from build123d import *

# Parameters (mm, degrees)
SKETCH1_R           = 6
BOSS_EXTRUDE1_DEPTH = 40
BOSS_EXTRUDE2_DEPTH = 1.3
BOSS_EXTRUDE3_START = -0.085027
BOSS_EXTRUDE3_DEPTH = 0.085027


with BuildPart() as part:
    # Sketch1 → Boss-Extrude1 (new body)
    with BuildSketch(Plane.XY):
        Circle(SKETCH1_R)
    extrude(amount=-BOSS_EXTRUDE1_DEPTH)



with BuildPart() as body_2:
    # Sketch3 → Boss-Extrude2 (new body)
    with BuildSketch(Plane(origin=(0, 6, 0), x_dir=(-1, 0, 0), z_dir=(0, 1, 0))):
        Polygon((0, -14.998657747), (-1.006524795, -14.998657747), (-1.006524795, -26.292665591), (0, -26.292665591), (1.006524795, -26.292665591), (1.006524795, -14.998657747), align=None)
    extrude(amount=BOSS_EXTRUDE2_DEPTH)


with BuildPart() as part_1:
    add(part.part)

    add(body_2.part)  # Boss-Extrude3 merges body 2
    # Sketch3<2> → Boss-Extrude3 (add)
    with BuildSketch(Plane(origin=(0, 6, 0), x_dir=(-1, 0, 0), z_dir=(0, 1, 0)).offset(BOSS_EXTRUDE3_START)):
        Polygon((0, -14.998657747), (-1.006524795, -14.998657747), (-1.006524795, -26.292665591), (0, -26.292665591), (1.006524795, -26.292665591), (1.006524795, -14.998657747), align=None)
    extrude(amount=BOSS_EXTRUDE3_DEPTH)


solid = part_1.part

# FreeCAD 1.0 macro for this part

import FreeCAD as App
import Part
import Sketcher
Q = App.Units.Quantity


def add_polygon(sketch, points):
    """Adds a closed chain of lines whose ends are joined by coincident constraints."""
    first, n = sketch.GeometryCount, len(points)
    for a, b in zip(points, points[1:] + points[:1]):
        sketch.addGeometry(Part.LineSegment(App.Vector(*a, 0), App.Vector(*b, 0)), False)
    for i in range(n):
        sketch.addConstraint(Sketcher.Constraint("Coincident", first + i, 2, first + (i + 1) % n, 1))

doc = App.newDocument("Part")
body = doc.addObject("PartDesign::Body", "Body")

# Sketch on XY plane
sketch1 = doc.addObject("Sketcher::SketchObject", "Sketch")
body.addObject(sketch1)
sketch1.AttachmentSupport = (doc.XY_Plane, [""])
sketch1.MapMode = "FlatFace"
sketch1.addGeometry(Part.Circle(App.Vector(0, 0, 0), App.Vector(0, 0, 1), 6), False)
sketch1.addConstraint(Sketcher.Constraint("Coincident", 0, 3, -1, 1))
sketch1.addConstraint(Sketcher.Constraint("Diameter", 0, Q("12 mm")))
pad1 = doc.addObject("PartDesign::Pad", "Pad")
body.addObject(pad1)
pad1.Profile = sketch1
pad1.Length = 40
pad1.Reversed = True
body2 = doc.addObject("PartDesign::Body", "Body001")

# Sketch on XZ plane
sketch2 = doc.addObject("Sketcher::SketchObject", "Sketch001")
body2.addObject(sketch2)
sketch2.AttachmentSupport = (doc.getObject("XZ_Plane001"), [""])
sketch2.MapMode = "FlatFace"
sketch2.AttachmentOffset = App.Placement(App.Vector(0, 0, -6), App.Rotation())
add_polygon(sketch2, [(1, -15), (1, -26.3), (-1, -26.3), (-1, -15)])  # lines 0-3
sketch2.addConstraint(Sketcher.Constraint("Vertical", 0))
sketch2.addConstraint(Sketcher.Constraint("Horizontal", 1))
sketch2.addConstraint(Sketcher.Constraint("Vertical", 2))
sketch2.addConstraint(Sketcher.Constraint("Horizontal", 3))
sketch2.addConstraint(Sketcher.Constraint("DistanceX", 1, 2, 1, 1, Q("2.01305 mm")))
sketch2.addConstraint(Sketcher.Constraint("DistanceY", 0, 2, 0, 1, Q("11.294008 mm")))
sketch2.addConstraint(Sketcher.Constraint("DistanceX", -1, 1, 0, 2, Q("1.006525 mm")))
sketch2.addConstraint(Sketcher.Constraint("DistanceY", 0, 2, -1, 1, Q("26.292666 mm")))
pad2 = doc.addObject("PartDesign::Pad", "Pad001")
body2.addObject(pad2)
pad2.Profile = sketch2
pad2.Length = 1.3
pad2.Reversed = True
body.AllowCompound = True
doc.recompute()

boolean = doc.addObject("PartDesign::Boolean", "Boolean")
body.addObject(boolean)
boolean.Type = "Fuse"
boolean.addObjects([body2])

# Sketch on XZ plane
sketch3 = doc.addObject("Sketcher::SketchObject", "Sketch002")
body.addObject(sketch3)
sketch3.AttachmentSupport = (doc.XZ_Plane, [""])
sketch3.MapMode = "FlatFace"
sketch3.AttachmentOffset = App.Placement(App.Vector(0, 0, -5.914973), App.Rotation())
add_polygon(sketch3, [(1, -15), (1, -26.3), (-1, -26.3), (-1, -15)])  # lines 0-3
sketch3.addConstraint(Sketcher.Constraint("Vertical", 0))
sketch3.addConstraint(Sketcher.Constraint("Horizontal", 1))
sketch3.addConstraint(Sketcher.Constraint("Vertical", 2))
sketch3.addConstraint(Sketcher.Constraint("Horizontal", 3))
sketch3.addConstraint(Sketcher.Constraint("DistanceX", 1, 2, 1, 1, Q("2.01305 mm")))
sketch3.addConstraint(Sketcher.Constraint("DistanceY", 0, 2, 0, 1, Q("11.294008 mm")))
sketch3.addConstraint(Sketcher.Constraint("DistanceX", -1, 1, 0, 2, Q("1.006525 mm")))
sketch3.addConstraint(Sketcher.Constraint("DistanceY", 0, 2, -1, 1, Q("26.292666 mm")))
pad3 = doc.addObject("PartDesign::Pad", "Pad002")
body.addObject(pad3)
pad3.Profile = sketch3
pad3.Length = 0.085027
pad3.Reversed = True

doc.recompute()
